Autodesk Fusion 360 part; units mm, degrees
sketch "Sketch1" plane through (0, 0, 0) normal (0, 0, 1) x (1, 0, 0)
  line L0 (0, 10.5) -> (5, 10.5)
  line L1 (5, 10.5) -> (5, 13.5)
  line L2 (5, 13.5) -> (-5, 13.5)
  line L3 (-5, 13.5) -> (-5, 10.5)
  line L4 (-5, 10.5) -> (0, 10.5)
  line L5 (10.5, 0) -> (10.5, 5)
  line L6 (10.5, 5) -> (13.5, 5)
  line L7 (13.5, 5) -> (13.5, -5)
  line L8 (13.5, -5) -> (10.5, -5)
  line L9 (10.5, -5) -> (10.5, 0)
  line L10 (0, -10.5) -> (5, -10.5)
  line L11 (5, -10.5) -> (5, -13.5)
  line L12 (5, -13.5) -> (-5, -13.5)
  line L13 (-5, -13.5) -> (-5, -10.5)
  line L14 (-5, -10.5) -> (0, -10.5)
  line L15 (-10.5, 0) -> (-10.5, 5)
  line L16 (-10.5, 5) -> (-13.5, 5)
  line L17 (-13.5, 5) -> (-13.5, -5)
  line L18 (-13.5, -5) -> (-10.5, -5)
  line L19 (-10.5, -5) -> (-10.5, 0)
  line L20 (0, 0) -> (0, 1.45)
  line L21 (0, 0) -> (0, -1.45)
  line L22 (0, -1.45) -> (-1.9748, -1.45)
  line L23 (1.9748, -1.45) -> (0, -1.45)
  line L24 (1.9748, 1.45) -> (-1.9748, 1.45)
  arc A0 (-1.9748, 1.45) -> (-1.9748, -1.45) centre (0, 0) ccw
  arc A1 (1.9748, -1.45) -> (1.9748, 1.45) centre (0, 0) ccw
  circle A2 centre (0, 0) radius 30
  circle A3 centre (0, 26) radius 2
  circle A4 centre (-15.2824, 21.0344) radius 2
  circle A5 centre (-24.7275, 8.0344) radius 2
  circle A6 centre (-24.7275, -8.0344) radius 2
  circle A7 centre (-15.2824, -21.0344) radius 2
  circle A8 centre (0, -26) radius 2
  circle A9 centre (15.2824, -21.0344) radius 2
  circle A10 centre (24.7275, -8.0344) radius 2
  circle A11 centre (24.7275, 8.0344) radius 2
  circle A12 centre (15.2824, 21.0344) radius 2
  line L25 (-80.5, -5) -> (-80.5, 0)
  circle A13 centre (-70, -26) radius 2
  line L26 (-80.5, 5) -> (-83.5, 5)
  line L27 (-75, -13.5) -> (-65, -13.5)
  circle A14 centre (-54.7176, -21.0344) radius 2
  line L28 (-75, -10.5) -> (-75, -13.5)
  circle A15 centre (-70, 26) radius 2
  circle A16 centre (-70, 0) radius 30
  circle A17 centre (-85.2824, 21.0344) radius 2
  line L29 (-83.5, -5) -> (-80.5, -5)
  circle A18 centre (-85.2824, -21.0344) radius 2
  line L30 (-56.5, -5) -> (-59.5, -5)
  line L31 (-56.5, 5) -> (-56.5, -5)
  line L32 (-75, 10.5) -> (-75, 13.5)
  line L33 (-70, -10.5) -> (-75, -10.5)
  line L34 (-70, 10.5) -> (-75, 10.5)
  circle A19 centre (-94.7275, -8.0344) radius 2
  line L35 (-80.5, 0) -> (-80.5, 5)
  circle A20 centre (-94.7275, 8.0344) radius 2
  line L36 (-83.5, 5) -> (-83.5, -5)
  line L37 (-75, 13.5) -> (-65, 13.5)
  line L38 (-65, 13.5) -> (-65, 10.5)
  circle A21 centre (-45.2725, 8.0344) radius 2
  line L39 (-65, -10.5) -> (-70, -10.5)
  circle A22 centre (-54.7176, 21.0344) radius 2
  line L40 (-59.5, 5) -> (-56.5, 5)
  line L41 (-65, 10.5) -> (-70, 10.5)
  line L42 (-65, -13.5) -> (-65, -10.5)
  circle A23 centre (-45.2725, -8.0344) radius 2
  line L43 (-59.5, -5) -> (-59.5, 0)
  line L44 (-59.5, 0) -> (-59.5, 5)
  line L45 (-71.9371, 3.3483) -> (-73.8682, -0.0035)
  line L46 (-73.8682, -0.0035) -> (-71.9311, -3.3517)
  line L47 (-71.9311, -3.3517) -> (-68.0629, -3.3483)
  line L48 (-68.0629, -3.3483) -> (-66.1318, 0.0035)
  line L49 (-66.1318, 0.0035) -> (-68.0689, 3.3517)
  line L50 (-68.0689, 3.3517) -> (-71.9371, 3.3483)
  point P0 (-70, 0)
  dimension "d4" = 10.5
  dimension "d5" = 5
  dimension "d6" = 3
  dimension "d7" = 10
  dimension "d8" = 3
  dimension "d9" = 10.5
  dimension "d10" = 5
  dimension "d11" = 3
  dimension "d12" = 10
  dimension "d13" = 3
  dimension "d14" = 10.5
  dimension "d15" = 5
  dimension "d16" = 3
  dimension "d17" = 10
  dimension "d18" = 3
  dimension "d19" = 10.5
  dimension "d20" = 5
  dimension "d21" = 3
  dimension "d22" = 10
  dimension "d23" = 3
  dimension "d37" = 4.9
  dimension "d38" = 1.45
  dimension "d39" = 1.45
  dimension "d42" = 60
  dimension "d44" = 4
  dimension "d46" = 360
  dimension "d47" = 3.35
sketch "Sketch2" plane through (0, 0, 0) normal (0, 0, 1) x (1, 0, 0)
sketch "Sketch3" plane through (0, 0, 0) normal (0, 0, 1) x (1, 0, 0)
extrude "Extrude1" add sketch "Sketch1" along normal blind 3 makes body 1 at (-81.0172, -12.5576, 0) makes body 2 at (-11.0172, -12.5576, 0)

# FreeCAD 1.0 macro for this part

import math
import FreeCAD as App
import Part
import Sketcher

V = App.Vector
Q = App.Units.Quantity


def add_polygon(sketch, points):
    """Adds a closed chain of lines whose ends are joined by coincident constraints."""
    first, n = sketch.GeometryCount, len(points)
    for a, b in zip(points, points[1:] + points[:1]):
        sketch.addGeometry(Part.LineSegment(App.Vector(*a, 0), App.Vector(*b, 0)), False)
    for i in range(n):
        sketch.addConstraint(Sketcher.Constraint("Coincident", first + i, 2, first + (i + 1) % n, 1))

doc = App.newDocument("Part")
body = doc.addObject("PartDesign::Body", "Body")
body.AllowCompound = True

# Sketch on XY plane
sketch1 = doc.addObject("Sketcher::SketchObject", "Sketch")
body.addObject(sketch1)
sketch1.AttachmentSupport = (doc.XY_Plane, [""])
sketch1.MapMode = "FlatFace"
sketch1.addGeometry(Part.Circle(V(0, 0, 0), V(0, 0, 1), 30), False)  # 0
sketch1.addGeometry(Part.Circle(V(-15.2824, -21.0344, 0), V(0, 0, 1), 2), False)  # 1
sketch1.addGeometry(Part.Circle(V(0, -26, 0), V(0, 0, 1), 2), False)  # 2
sketch1.addGeometry(Part.Circle(V(15.2824, -21.0344, 0), V(0, 0, 1), 2), False)  # 3
sketch1.addGeometry(Part.Circle(V(-24.7275, -8.0344, 0), V(0, 0, 1), 2), False)  # 4
add_polygon(sketch1, [(-5, -10.5), (5, -10.5), (5, -13.5), (-5, -13.5)])  # lines 5-8
sketch1.addGeometry(Part.Circle(V(24.7275, -8.0344, 0), V(0, 0, 1), 2), False)  # 9
add_polygon(sketch1, [(-10.5, 5), (-10.5, -5), (-13.5, -5), (-13.5, 5)])  # lines 10-13
sketch1.addGeometry(Part.Circle(V(-24.7275, 8.0344, 0), V(0, 0, 1), 2), False)  # 14
sketch1.addGeometry(Part.LineSegment(V(-1.9748, 1.45, 0), V(1.9748, 1.45, 0)), False)  # 15
sketch1.addGeometry(Part.ArcOfCircle(Part.Circle(V(0, 0, 0), V(0, 0, 1), 2.449966), math.radians(-36.288035), math.radians(36.288035)), False)  # 16
sketch1.addGeometry(Part.LineSegment(V(1.9748, -1.45, 0), V(-1.9748, -1.45, 0)), False)  # 17
sketch1.addGeometry(Part.ArcOfCircle(Part.Circle(V(0, 0, 0), V(0, 0, 1), 2.449966), math.radians(143.711965), math.radians(216.288035)), False)  # 18
add_polygon(sketch1, [(10.5, -5), (10.5, 5), (13.5, 5), (13.5, -5)])  # lines 19-22
add_polygon(sketch1, [(5, 10.5), (-5, 10.5), (-5, 13.5), (5, 13.5)])  # lines 23-26
sketch1.addGeometry(Part.Circle(V(24.7275, 8.0344, 0), V(0, 0, 1), 2), False)  # 27
sketch1.addGeometry(Part.Circle(V(-15.2824, 21.0344, 0), V(0, 0, 1), 2), False)  # 28
sketch1.addGeometry(Part.Circle(V(15.2824, 21.0344, 0), V(0, 0, 1), 2), False)  # 29
sketch1.addGeometry(Part.Circle(V(0, 26, 0), V(0, 0, 1), 2), False)  # 30
sketch1.addGeometry(Part.Circle(V(-70, 0, 0), V(0, 0, 1), 30), False)  # 31
sketch1.addGeometry(Part.Circle(V(-70, -26, 0), V(0, 0, 1), 2), False)  # 32
sketch1.addGeometry(Part.Circle(V(-85.2824, -21.0344, 0), V(0, 0, 1), 2), False)  # 33
sketch1.addGeometry(Part.Circle(V(-54.7176, -21.0344, 0), V(0, 0, 1), 2), False)  # 34
sketch1.addGeometry(Part.Circle(V(-94.7275, -8.0344, 0), V(0, 0, 1), 2), False)  # 35
add_polygon(sketch1, [(-65, -13.5), (-75, -13.5), (-75, -10.5), (-65, -10.5)])  # lines 36-39
sketch1.addGeometry(Part.Circle(V(-45.2725, -8.0344, 0), V(0, 0, 1), 2), False)  # 40
add_polygon(sketch1, [(-80.5, 5), (-80.5, -5), (-83.5, -5), (-83.5, 5)])  # lines 41-44
add_polygon(sketch1, [(-73.8682, -0.0035), (-71.9371, 3.3483), (-68.0689, 3.3517), (-66.1318, 0.0035), (-68.0629, -3.3483), (-71.9311, -3.3517)])  # lines 45-50
sketch1.addGeometry(Part.Circle(V(-94.7275, 8.0344, 0), V(0, 0, 1), 2), False)  # 51
add_polygon(sketch1, [(-65, 10.5), (-75, 10.5), (-75, 13.5), (-65, 13.5)])  # lines 52-55
add_polygon(sketch1, [(-56.5, 5), (-56.5, -5), (-59.5, -5), (-59.5, 5)])  # lines 56-59
sketch1.addGeometry(Part.Circle(V(-45.2725, 8.0344, 0), V(0, 0, 1), 2), False)  # 60
sketch1.addGeometry(Part.Circle(V(-85.2824, 21.0344, 0), V(0, 0, 1), 2), False)  # 61
sketch1.addGeometry(Part.Circle(V(-70, 26, 0), V(0, 0, 1), 2), False)  # 62
sketch1.addGeometry(Part.Circle(V(-54.7176, 21.0344, 0), V(0, 0, 1), 2), False)  # 63
sketch1.addConstraint([
    Sketcher.Constraint("Coincident", 15, 2, 16, 2),
    Sketcher.Constraint("Coincident", 16, 1, 17, 1),
    Sketcher.Constraint("Coincident", 17, 2, 18, 2),
    Sketcher.Constraint("Coincident", 18, 1, 15, 1),
    Sketcher.Constraint("Horizontal", 5),
    Sketcher.Constraint("Vertical", 6),
    Sketcher.Constraint("Horizontal", 7),
    Sketcher.Constraint("Vertical", 8),
    Sketcher.Constraint("Vertical", 10),
    Sketcher.Constraint("Horizontal", 11),
    Sketcher.Constraint("Vertical", 12),
    Sketcher.Constraint("Horizontal", 13),
    Sketcher.Constraint("Horizontal", 15),
    Sketcher.Constraint("Horizontal", 17),
    Sketcher.Constraint("Vertical", 19),
    Sketcher.Constraint("Horizontal", 20),
    Sketcher.Constraint("Vertical", 21),
    Sketcher.Constraint("Horizontal", 22),
    Sketcher.Constraint("Horizontal", 23),
    Sketcher.Constraint("Vertical", 24),
    Sketcher.Constraint("Horizontal", 25),
    Sketcher.Constraint("Vertical", 26),
    Sketcher.Constraint("Horizontal", 36),
    Sketcher.Constraint("Vertical", 37),
    Sketcher.Constraint("Horizontal", 38),
    Sketcher.Constraint("Vertical", 39),
    Sketcher.Constraint("Vertical", 41),
    Sketcher.Constraint("Horizontal", 42),
    Sketcher.Constraint("Vertical", 43),
    Sketcher.Constraint("Horizontal", 44),
    Sketcher.Constraint("Horizontal", 52),
    Sketcher.Constraint("Vertical", 53),
    Sketcher.Constraint("Horizontal", 54),
    Sketcher.Constraint("Vertical", 55),
    Sketcher.Constraint("Vertical", 56),
    Sketcher.Constraint("Horizontal", 57),
    Sketcher.Constraint("Vertical", 58),
    Sketcher.Constraint("Horizontal", 59),
    Sketcher.Constraint("Coincident", 0, 3, -1, 1),
    Sketcher.Constraint("Coincident", 16, 3, -1, 1),
    Sketcher.Constraint("Coincident", 18, 3, -1, 1),
    Sketcher.Constraint("Equal", 1, 2),
    Sketcher.Constraint("Equal", 2, 3),
    Sketcher.Constraint("Equal", 3, 4),
    Sketcher.Constraint("Equal", 4, 9),
    Sketcher.Constraint("Equal", 9, 14),
    Sketcher.Constraint("Equal", 16, 18),
    Sketcher.Constraint("Equal", 14, 27),
    Sketcher.Constraint("Equal", 27, 28),
    Sketcher.Constraint("Equal", 28, 29),
    Sketcher.Constraint("Equal", 29, 30),
    Sketcher.Constraint("Equal", 0, 31),
    Sketcher.Constraint("Equal", 30, 32),
    Sketcher.Constraint("Equal", 32, 33),
    Sketcher.Constraint("Equal", 33, 34),
    Sketcher.Constraint("Equal", 34, 35),
    Sketcher.Constraint("Equal", 35, 40),
    Sketcher.Constraint("Equal", 40, 51),
    Sketcher.Constraint("Equal", 51, 60),
    Sketcher.Constraint("Equal", 60, 61),
    Sketcher.Constraint("Equal", 61, 62),
    Sketcher.Constraint("Equal", 62, 63),
    Sketcher.Constraint("Symmetric", 9, 3, 14, 3, -1, 1),
    Sketcher.Constraint("Symmetric", 4, 3, 27, 3, -1, 1),
    Sketcher.Constraint("Symmetric", 3, 3, 28, 3, -1, 1),
    Sketcher.Constraint("Symmetric", 1, 3, 29, 3, -1, 1),
    Sketcher.Constraint("Symmetric", 2, 3, 30, 3, -1, 1),
    Sketcher.Constraint("Symmetric", 10, 2, 19, 2, -1, 1),
    Sketcher.Constraint("Symmetric", 12, 2, 21, 2, -1, 1),
    Sketcher.Constraint("Symmetric", 5, 2, 23, 2, -1, 1),
    Sketcher.Constraint("Symmetric", 7, 2, 25, 2, -1, 1),
    Sketcher.Constraint("Symmetric", 1, 3, 3, 3, -2),
    Sketcher.Constraint("Symmetric", 4, 3, 9, 3, -2),
    Sketcher.Constraint("Symmetric", 35, 3, 51, 3, -1),
    Sketcher.Constraint("Symmetric", 40, 3, 60, 3, -1),
    Sketcher.Constraint("Symmetric", 33, 3, 61, 3, -1),
    Sketcher.Constraint("Symmetric", 32, 3, 62, 3, -1),
    Sketcher.Constraint("Symmetric", 34, 3, 63, 3, -1),
    Sketcher.Constraint("Symmetric", 37, 2, 52, 2, -1),
    Sketcher.Constraint("Symmetric", 39, 2, 54, 2, -1),
    Sketcher.Constraint("PointOnObject", 2, 3, -2),
    Sketcher.Constraint("PointOnObject", 31, 3, -1),
    Sketcher.Constraint("Parallel", 45, 48),
    Sketcher.Constraint("Parallel", 46, 49),
    Sketcher.Constraint("Parallel", 47, 50),
    Sketcher.Constraint("Horizontal", 2, 3, 32, 3),
    Sketcher.Constraint("Horizontal", 3, 3, 33, 3),
    Sketcher.Constraint("Horizontal", 33, 3, 34, 3),
    Sketcher.Constraint("Horizontal", 9, 3, 35, 3),
    Sketcher.Constraint("Horizontal", 35, 3, 40, 3),
    Sketcher.Constraint("Horizontal", 13, 2, 19, 2),
    Sketcher.Constraint("Horizontal", 7, 2, 36, 2),
    Sketcher.Constraint("Horizontal", 8, 2, 37, 2),
    Sketcher.Constraint("Horizontal", 22, 2, 41, 2),
    Sketcher.Constraint("Horizontal", 20, 2, 43, 2),
    Sketcher.Constraint("Horizontal", 42, 2, 56, 2),
    Sketcher.Constraint("Horizontal", 44, 2, 58, 2),
    Sketcher.Constraint("Vertical", 31, 3, 32, 3),
    Sketcher.Constraint("Vertical", 15, 2, 16, 1),
    Sketcher.Constraint("Vertical", 8, 2, 23, 2),
    Sketcher.Constraint("Equal", 25, 36),
    Sketcher.Constraint("Equal", 22, 42),
    Sketcher.Constraint("Equal", 44, 57),
    Sketcher.Constraint("Equal", 59, 6),
    Sketcher.Constraint("Equal", 54, 10),
    Sketcher.Constraint("Equal", 45, 46),
    Sketcher.Constraint("Equal", 46, 47),
    Sketcher.Constraint("Equal", 47, 48),
    Sketcher.Constraint("Diameter", 0, Q("60 mm")),
    Sketcher.Constraint("Diameter", 1, Q("4 mm")),
    Sketcher.Constraint("DistanceX", 5, 1, 5, 2, Q("10 mm")),
    Sketcher.Constraint("DistanceX", 11, 2, 11, 1, Q("3 mm")),
    Sketcher.Constraint("Radius", 16, Q("2.45 mm")),
    Sketcher.Constraint("DistanceY", 5, 2, -1, 1, Q("10.5 mm")),
    Sketcher.Constraint("DistanceX", 10, 2, -1, 1, Q("10.5 mm")),
    Sketcher.Constraint("DistanceY", -1, 1, 15, 2, Q("1.45 mm")),
    Sketcher.Constraint("DistanceY", 2, 3, -1, 1, Q("26 mm")),
    Sketcher.Constraint("DistanceX", 31, 3, -1, 1, Q("70 mm")),
    Sketcher.Constraint("DistanceX", 36, 2, -1, 1, Q("75 mm")),
    Sketcher.Constraint("DistanceX", 41, 2, -1, 1, Q("80.5 mm")),
    Sketcher.Constraint("DistanceX", 56, 2, -1, 1, Q("56.5 mm")),
    Sketcher.Constraint("Angle", 46, Q("0.0504 deg")),
    Sketcher.Constraint("DistanceX", 45, 2, -1, 1, Q("71.937 mm")),
    Sketcher.Constraint("DistanceX", 46, 2, -1, 1, Q("68.069 mm")),
    Sketcher.Constraint("DistanceX", 48, 2, -1, 1, Q("68.063 mm")),
    Sketcher.Constraint("DistanceX", 1, 3, -1, 1, Q("15.2824 mm")),
    Sketcher.Constraint("DistanceY", 1, 3, -1, 1, Q("21.0344 mm")),
    Sketcher.Constraint("DistanceX", 4, 3, -1, 1, Q("24.7275 mm")),
    Sketcher.Constraint("DistanceY", 4, 3, -1, 1, Q("8.0344 mm")),
    Sketcher.Constraint("DistanceX", 33, 3, -1, 1, Q("85.2824 mm")),
    Sketcher.Constraint("DistanceX", 34, 3, -1, 1, Q("54.7176 mm")),
    Sketcher.Constraint("DistanceX", 35, 3, -1, 1, Q("94.7275 mm")),
    Sketcher.Constraint("DistanceX", 40, 3, -1, 1, Q("45.2725 mm")),
    Sketcher.Constraint("DistanceY", -1, 1, 45, 2, Q("3.3483 mm")),
    Sketcher.Constraint("DistanceX", 47, 2, -1, 1, Q("66.1318 mm")),
])
pad1 = doc.addObject("PartDesign::Pad", "Pad")
body.addObject(pad1)
pad1.Profile = sketch1
pad1.Length = 3

doc.recompute()
